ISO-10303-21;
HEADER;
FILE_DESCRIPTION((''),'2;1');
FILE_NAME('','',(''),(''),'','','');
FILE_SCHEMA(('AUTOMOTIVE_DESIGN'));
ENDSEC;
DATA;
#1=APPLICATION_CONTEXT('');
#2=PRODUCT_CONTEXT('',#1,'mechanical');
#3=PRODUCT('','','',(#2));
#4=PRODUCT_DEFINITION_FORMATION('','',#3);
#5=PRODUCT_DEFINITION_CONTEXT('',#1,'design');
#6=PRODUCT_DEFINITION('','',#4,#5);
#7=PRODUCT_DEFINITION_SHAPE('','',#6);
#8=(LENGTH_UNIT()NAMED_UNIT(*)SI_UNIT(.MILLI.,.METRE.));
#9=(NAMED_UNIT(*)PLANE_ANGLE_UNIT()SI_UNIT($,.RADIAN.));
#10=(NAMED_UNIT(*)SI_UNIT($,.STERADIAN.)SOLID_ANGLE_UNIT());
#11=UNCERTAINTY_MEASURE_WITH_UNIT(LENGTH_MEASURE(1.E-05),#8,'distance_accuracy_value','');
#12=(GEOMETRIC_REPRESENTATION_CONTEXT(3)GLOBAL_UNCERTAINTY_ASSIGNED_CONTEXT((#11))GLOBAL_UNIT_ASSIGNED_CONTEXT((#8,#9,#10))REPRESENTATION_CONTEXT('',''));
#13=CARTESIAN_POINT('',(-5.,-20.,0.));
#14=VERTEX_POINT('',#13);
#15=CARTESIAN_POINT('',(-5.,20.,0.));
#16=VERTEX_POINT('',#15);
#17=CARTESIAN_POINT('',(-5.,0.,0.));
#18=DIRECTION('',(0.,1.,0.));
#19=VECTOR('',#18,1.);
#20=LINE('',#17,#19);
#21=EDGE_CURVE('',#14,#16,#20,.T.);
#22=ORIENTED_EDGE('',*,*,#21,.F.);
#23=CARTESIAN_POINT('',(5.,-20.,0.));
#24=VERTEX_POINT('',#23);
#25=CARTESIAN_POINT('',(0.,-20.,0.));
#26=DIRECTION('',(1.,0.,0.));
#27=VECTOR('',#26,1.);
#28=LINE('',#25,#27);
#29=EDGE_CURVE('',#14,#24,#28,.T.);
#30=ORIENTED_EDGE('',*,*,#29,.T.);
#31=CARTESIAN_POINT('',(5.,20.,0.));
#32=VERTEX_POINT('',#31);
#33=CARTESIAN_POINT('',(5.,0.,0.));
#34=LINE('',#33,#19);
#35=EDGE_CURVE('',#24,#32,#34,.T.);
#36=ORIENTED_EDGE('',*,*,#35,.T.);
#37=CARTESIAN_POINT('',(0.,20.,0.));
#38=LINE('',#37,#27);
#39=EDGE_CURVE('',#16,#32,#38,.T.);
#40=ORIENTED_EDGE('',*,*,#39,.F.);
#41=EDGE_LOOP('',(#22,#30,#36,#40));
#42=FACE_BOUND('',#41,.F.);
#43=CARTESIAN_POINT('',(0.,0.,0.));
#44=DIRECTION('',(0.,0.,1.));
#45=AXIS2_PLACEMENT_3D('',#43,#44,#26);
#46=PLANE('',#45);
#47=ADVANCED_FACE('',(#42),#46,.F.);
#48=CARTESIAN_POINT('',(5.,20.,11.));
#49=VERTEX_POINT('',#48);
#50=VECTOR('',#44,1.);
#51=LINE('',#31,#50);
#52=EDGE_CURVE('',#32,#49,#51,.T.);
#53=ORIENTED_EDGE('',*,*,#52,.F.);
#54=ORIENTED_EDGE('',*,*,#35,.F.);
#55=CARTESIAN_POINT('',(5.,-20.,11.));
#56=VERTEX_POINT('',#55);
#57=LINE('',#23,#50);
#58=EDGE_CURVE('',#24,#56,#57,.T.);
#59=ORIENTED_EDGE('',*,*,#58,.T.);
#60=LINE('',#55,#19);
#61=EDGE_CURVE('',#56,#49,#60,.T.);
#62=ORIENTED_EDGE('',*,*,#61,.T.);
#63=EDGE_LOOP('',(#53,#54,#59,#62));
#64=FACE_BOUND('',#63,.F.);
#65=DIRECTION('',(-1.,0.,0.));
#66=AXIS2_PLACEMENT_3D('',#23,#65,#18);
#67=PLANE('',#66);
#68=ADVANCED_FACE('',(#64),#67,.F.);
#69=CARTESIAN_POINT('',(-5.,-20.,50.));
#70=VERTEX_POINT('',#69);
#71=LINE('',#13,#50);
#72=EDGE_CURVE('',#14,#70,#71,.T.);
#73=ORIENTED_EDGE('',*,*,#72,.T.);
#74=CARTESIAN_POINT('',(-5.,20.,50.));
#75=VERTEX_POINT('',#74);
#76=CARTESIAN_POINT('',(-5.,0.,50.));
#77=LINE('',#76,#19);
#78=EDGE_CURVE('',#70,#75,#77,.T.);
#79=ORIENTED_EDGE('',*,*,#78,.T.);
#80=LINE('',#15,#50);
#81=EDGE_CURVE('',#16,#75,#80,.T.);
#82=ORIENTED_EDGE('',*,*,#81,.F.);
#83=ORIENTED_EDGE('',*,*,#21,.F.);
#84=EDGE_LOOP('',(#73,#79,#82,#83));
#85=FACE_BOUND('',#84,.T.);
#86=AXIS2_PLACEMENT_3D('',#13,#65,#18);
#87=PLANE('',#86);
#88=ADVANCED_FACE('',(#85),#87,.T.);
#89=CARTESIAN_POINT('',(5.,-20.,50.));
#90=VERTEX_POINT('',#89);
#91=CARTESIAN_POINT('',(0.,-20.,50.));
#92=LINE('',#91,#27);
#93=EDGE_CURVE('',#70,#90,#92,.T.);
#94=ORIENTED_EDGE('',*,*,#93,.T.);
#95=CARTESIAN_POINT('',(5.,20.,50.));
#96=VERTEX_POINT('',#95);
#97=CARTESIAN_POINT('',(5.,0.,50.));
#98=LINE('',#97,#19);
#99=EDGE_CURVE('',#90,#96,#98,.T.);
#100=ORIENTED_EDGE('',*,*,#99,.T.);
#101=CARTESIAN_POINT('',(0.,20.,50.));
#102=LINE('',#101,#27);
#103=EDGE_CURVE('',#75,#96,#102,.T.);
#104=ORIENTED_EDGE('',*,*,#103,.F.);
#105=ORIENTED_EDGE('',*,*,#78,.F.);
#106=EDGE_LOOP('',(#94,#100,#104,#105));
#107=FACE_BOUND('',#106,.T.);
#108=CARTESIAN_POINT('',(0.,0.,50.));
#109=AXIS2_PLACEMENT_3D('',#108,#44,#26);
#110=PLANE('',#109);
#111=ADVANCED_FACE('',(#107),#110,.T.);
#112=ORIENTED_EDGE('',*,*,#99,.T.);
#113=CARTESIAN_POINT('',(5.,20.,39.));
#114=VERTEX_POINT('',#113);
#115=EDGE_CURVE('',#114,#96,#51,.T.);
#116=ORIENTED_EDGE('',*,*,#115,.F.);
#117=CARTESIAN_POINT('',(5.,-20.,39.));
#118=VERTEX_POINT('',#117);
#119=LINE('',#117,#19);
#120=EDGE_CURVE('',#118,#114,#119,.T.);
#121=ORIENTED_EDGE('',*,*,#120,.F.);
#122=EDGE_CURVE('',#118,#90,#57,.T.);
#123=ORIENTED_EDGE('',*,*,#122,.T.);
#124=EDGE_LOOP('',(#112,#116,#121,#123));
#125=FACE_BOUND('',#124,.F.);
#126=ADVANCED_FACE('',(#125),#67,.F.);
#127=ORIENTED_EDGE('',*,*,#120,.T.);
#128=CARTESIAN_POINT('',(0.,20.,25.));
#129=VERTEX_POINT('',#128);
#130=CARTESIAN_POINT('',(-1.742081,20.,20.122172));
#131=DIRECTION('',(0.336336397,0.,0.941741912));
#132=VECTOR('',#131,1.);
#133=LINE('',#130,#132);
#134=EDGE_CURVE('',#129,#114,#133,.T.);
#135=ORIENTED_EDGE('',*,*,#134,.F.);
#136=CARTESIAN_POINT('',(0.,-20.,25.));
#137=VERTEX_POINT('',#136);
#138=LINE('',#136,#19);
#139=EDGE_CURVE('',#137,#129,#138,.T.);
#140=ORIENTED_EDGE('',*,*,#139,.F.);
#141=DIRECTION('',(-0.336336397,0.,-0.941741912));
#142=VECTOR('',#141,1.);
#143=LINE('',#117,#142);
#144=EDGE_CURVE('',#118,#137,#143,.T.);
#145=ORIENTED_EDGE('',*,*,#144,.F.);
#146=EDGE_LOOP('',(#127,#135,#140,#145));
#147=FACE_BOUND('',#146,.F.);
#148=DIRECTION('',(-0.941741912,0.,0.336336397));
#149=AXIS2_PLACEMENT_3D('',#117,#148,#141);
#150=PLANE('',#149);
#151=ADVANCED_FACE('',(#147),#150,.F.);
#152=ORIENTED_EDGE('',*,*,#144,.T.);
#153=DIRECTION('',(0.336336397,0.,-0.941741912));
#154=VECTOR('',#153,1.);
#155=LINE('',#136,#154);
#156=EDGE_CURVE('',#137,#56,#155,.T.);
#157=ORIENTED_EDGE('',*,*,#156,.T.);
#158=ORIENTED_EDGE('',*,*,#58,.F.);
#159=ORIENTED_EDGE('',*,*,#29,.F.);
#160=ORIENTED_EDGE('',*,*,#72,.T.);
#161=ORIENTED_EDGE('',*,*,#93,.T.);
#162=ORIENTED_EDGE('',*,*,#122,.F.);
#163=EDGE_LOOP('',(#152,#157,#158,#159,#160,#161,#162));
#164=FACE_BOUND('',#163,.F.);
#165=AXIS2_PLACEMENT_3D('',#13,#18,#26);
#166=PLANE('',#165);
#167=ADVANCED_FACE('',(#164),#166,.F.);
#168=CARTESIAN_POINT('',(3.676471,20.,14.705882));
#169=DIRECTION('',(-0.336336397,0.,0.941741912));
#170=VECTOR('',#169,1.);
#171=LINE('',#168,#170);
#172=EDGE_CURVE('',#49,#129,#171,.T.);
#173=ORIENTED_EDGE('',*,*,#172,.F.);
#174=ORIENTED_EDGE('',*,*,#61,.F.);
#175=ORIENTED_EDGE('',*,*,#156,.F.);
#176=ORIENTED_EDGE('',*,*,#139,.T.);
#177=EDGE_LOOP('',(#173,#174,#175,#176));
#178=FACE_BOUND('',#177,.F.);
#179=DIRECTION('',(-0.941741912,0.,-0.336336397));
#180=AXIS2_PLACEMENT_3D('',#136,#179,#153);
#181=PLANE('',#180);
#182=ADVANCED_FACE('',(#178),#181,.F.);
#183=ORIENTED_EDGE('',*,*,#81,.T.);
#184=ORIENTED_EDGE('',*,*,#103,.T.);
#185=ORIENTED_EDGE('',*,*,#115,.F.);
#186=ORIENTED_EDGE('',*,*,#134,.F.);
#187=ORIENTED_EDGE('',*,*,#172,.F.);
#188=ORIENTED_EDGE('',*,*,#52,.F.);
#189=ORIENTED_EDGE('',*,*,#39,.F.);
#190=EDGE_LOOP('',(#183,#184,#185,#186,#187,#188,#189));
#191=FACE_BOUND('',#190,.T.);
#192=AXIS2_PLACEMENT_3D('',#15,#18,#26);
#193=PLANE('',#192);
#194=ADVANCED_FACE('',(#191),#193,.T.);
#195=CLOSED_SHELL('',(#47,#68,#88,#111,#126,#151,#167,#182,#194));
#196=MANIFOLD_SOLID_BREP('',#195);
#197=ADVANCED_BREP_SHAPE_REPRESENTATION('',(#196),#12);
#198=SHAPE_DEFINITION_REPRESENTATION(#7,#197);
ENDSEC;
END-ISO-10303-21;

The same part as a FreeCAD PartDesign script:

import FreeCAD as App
import Part
import Sketcher

doc = App.newDocument("Part")
body = doc.addObject("PartDesign::Body", "Body")

sketch1 = body.newObject("Sketcher::SketchObject", "Sketch")
sketch1.AttachmentSupport = (doc.getObject("XY_Plane"), [""])
sketch1.MapMode = "FlatFace"
sketch1.addGeometry([
    Part.LineSegment(App.Vector(-5, 20, 0), App.Vector(-5, -20, 0)),
    Part.LineSegment(App.Vector(-5, -20, 0), App.Vector(5, -20, 0)),
    Part.LineSegment(App.Vector(5, -20, 0), App.Vector(5, 20, 0)),
    Part.LineSegment(App.Vector(5, 20, 0), App.Vector(-5, 20, 0)),
], False)
sketch1.addConstraint([
    Sketcher.Constraint("Coincident", 0, 2, 1, 1),
    Sketcher.Constraint("Coincident", 1, 2, 2, 1),
    Sketcher.Constraint("Coincident", 2, 2, 3, 1),
    Sketcher.Constraint("Coincident", 3, 2, 0, 1),
    Sketcher.Constraint("Vertical", 0),
    Sketcher.Constraint("Horizontal", 1),
    Sketcher.Constraint("Vertical", 2),
    Sketcher.Constraint("Horizontal", 3),
    Sketcher.Constraint("Symmetric", 0, 2, 2, 2, -1, 1),
    Sketcher.Constraint("DistanceX", 1, 1, 1, 2, 10.0),
    Sketcher.Constraint("DistanceY", 0, 2, 0, 1, 40.0),
])
pad1 = body.newObject("PartDesign::Pad", "Pad")
pad1.Profile = sketch1
pad1.Length = 50

sketch2 = body.newObject("Sketcher::SketchObject", "Sketch001")
sketch2.AttachmentSupport = (doc.getObject("XZ_Plane"), [""])
sketch2.MapMode = "FlatFace"
sketch2.AttachmentOffset = App.Placement(App.Vector(0, 0, 20), App.Rotation())
sketch2.addGeometry([
    Part.LineSegment(App.Vector(5, 11, 0), App.Vector(5, 39, 0)),
    Part.LineSegment(App.Vector(5, 39, 0), App.Vector(0, 25, 0)),
    Part.LineSegment(App.Vector(0, 25, 0), App.Vector(5, 11, 0)),
], False)
sketch2.addConstraint([
    Sketcher.Constraint("Coincident", 0, 2, 1, 1),
    Sketcher.Constraint("Coincident", 1, 2, 2, 1),
    Sketcher.Constraint("Coincident", 2, 2, 0, 1),
    Sketcher.Constraint("Vertical", 0),
    Sketcher.Constraint("PointOnObject", 1, 2, -2),
    Sketcher.Constraint("Equal", 1, 2),
    Sketcher.Constraint("DistanceY", 0, 1, 0, 2, 28.0),
    Sketcher.Constraint("DistanceX", -1, 1, 0, 2, 5.0),
    Sketcher.Constraint("DistanceY", -1, 1, 0, 2, 39.0),
])
pocket1 = body.newObject("PartDesign::Pocket", "Pocket")
pocket1.Profile = sketch2
pocket1.Length = 43.6

doc.recompute()
